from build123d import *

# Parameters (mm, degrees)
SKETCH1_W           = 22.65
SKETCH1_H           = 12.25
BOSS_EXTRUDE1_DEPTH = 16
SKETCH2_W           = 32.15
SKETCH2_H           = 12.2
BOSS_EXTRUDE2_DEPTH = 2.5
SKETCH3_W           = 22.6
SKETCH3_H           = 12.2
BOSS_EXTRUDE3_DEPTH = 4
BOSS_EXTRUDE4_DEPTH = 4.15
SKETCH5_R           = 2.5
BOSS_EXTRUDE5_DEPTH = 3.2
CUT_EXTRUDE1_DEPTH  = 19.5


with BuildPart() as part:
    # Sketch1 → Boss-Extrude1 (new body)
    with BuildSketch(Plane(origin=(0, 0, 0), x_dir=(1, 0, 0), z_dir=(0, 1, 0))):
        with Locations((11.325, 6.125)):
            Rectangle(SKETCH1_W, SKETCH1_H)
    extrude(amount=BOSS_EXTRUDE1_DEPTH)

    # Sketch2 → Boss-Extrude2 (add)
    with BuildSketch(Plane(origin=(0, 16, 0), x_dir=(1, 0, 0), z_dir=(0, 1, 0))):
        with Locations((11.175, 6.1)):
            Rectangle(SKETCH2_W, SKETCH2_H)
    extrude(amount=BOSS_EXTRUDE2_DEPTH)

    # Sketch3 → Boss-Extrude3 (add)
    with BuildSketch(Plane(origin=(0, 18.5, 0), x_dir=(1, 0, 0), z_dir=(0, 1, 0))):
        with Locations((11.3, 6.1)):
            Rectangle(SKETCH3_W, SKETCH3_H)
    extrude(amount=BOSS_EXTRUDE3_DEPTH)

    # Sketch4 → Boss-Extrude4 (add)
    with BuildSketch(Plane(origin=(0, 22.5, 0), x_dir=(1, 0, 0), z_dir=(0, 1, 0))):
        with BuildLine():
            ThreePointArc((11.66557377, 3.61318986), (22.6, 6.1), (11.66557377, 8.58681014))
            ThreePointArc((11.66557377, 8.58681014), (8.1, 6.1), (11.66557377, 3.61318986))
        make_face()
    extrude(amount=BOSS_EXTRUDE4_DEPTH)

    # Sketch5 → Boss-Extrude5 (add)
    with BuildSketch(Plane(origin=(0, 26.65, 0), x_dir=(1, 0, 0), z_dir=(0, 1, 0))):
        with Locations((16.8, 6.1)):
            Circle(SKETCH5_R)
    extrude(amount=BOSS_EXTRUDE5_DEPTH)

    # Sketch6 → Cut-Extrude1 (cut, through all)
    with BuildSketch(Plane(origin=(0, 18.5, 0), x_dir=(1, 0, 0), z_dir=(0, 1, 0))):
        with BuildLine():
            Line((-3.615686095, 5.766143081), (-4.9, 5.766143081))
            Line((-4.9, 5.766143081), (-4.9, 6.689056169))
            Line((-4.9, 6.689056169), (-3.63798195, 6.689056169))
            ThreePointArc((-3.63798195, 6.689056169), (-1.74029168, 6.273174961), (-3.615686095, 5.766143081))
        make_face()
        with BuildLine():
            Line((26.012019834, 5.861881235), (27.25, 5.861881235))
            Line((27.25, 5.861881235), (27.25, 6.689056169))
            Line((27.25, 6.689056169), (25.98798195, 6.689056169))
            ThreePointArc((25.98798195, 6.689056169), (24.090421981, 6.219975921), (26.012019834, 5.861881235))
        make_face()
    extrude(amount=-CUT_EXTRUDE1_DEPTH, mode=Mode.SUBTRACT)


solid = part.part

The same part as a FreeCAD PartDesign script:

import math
import FreeCAD as App
import Part
import Sketcher

V = App.Vector

doc = App.newDocument("Part")
body = doc.addObject("PartDesign::Body", "Body")

sketch1 = body.newObject("Sketcher::SketchObject", "Sketch")
sketch1.AttachmentSupport = (doc.getObject("XZ_Plane"), [""])
sketch1.MapMode = "FlatFace"
sketch1.addGeometry(Part.LineSegment(V(0, -12.25, 0), V(0, 0, 0)), False)
sketch1.addGeometry(Part.LineSegment(V(0, 0, 0), V(22.65, 0, 0)), False)
sketch1.addGeometry(Part.LineSegment(V(22.65, 0, 0), V(22.65, -12.25, 0)), False)
sketch1.addGeometry(Part.LineSegment(V(22.65, -12.25, 0), V(0, -12.25, 0)), False)
sketch1.addConstraint(Sketcher.Constraint("Coincident", 0, 2, 1, 1))
sketch1.addConstraint(Sketcher.Constraint("Coincident", 1, 2, 2, 1))
sketch1.addConstraint(Sketcher.Constraint("Coincident", 2, 2, 3, 1))
sketch1.addConstraint(Sketcher.Constraint("Coincident", 3, 2, 0, 1))
sketch1.addConstraint(Sketcher.Constraint("Vertical", 0))
sketch1.addConstraint(Sketcher.Constraint("Horizontal", 1))
sketch1.addConstraint(Sketcher.Constraint("Vertical", 2))
sketch1.addConstraint(Sketcher.Constraint("Horizontal", 3))
sketch1.addConstraint(Sketcher.Constraint("Coincident", 0, 2, -1, 1))
sketch1.addConstraint(Sketcher.Constraint("DistanceX", 1, 1, 1, 2, 22.65))
sketch1.addConstraint(Sketcher.Constraint("DistanceY", 0, 1, 0, 2, 12.25))
pad1 = body.newObject("PartDesign::Pad", "Pad")
pad1.Profile = sketch1
pad1.Length = 16
pad1.Reversed = True

sketch2 = body.newObject("Sketcher::SketchObject", "Sketch001")
sketch2.AttachmentSupport = (doc.getObject("XZ_Plane"), [""])
sketch2.MapMode = "FlatFace"
sketch2.AttachmentOffset = App.Placement(V(0, 0, -16), App.Rotation())
sketch2.addGeometry(Part.LineSegment(V(-4.9, -12.2, 0), V(-4.9, 0, 0)), False)
sketch2.addGeometry(Part.LineSegment(V(-4.9, 0, 0), V(27.25, 0, 0)), False)
sketch2.addGeometry(Part.LineSegment(V(27.25, 0, 0), V(27.25, -12.2, 0)), False)
sketch2.addGeometry(Part.LineSegment(V(27.25, -12.2, 0), V(-4.9, -12.2, 0)), False)
sketch2.addConstraint(Sketcher.Constraint("Coincident", 0, 2, 1, 1))
sketch2.addConstraint(Sketcher.Constraint("Coincident", 1, 2, 2, 1))
sketch2.addConstraint(Sketcher.Constraint("Coincident", 2, 2, 3, 1))
sketch2.addConstraint(Sketcher.Constraint("Coincident", 3, 2, 0, 1))
sketch2.addConstraint(Sketcher.Constraint("Vertical", 0))
sketch2.addConstraint(Sketcher.Constraint("Horizontal", 1))
sketch2.addConstraint(Sketcher.Constraint("Vertical", 2))
sketch2.addConstraint(Sketcher.Constraint("Horizontal", 3))
sketch2.addConstraint(Sketcher.Constraint("PointOnObject", 0, 2, -1))
sketch2.addConstraint(Sketcher.Constraint("DistanceY", 0, 1, 0, 2, 12.2))
sketch2.addConstraint(Sketcher.Constraint("DistanceX", 1, 1, 1, 2, 32.15))
sketch2.addConstraint(Sketcher.Constraint("DistanceX", 0, 2, -1, 1, 4.9))
pad2 = body.newObject("PartDesign::Pad", "Pad001")
pad2.Profile = sketch2
pad2.Length = 2.5
pad2.Reversed = True

sketch3 = body.newObject("Sketcher::SketchObject", "Sketch002")
sketch3.AttachmentSupport = (doc.getObject("XZ_Plane"), [""])
sketch3.MapMode = "FlatFace"
sketch3.AttachmentOffset = App.Placement(V(0, 0, -18.5), App.Rotation())
sketch3.addGeometry(Part.LineSegment(V(0, -12.2, 0), V(0, 0, 0)), False)
sketch3.addGeometry(Part.LineSegment(V(0, 0, 0), V(22.6, 0, 0)), False)
sketch3.addGeometry(Part.LineSegment(V(22.6, 0, 0), V(22.6, -12.2, 0)), False)
sketch3.addGeometry(Part.LineSegment(V(22.6, -12.2, 0), V(0, -12.2, 0)), False)
sketch3.addConstraint(Sketcher.Constraint("Coincident", 0, 2, 1, 1))
sketch3.addConstraint(Sketcher.Constraint("Coincident", 1, 2, 2, 1))
sketch3.addConstraint(Sketcher.Constraint("Coincident", 2, 2, 3, 1))
sketch3.addConstraint(Sketcher.Constraint("Coincident", 3, 2, 0, 1))
sketch3.addConstraint(Sketcher.Constraint("Vertical", 0))
sketch3.addConstraint(Sketcher.Constraint("Horizontal", 1))
sketch3.addConstraint(Sketcher.Constraint("Vertical", 2))
sketch3.addConstraint(Sketcher.Constraint("Horizontal", 3))
sketch3.addConstraint(Sketcher.Constraint("Coincident", 0, 2, -1, 1))
sketch3.addConstraint(Sketcher.Constraint("DistanceX", 1, 1, 1, 2, 22.6))
sketch3.addConstraint(Sketcher.Constraint("DistanceY", 0, 1, 0, 2, 12.2))
pad3 = body.newObject("PartDesign::Pad", "Pad002")
pad3.Profile = sketch3
pad3.Length = 4
pad3.Reversed = True

sketch4 = body.newObject("Sketcher::SketchObject", "Sketch003")
sketch4.AttachmentSupport = (doc.getObject("XZ_Plane"), [""])
sketch4.MapMode = "FlatFace"
sketch4.AttachmentOffset = App.Placement(V(0, 0, -22.5), App.Rotation())
sketch4.addGeometry(Part.ArcOfCircle(Part.Circle(V(16.85, -6.1, 0), V(0, 0, 1), 5.75), math.radians(-154.374395), math.radians(154.374395)), False)
sketch4.addGeometry(Part.ArcOfCircle(Part.Circle(V(10.75, -6.1, 0), V(0, 0, 1), 2.65), math.radians(69.787708), math.radians(290.212292)), False)
sketch4.addConstraint(Sketcher.Constraint("Coincident", 0, 1, 1, 2))
sketch4.addConstraint(Sketcher.Constraint("Coincident", 1, 1, 0, 2))
sketch4.addConstraint(Sketcher.Constraint("Horizontal", 0, 3, 1, 3))
sketch4.addConstraint(Sketcher.Constraint("Radius", 0, 5.75))
sketch4.addConstraint(Sketcher.Constraint("Radius", 1, 2.65))
sketch4.addConstraint(Sketcher.Constraint("DistanceY", 0, 3, -1, 1, 6.1))
sketch4.addConstraint(Sketcher.Constraint("DistanceX", 1, 3, 0, 3, 6.1))
sketch4.addConstraint(Sketcher.Constraint("DistanceX", -1, 1, 0, 3, 16.85))
pad4 = body.newObject("PartDesign::Pad", "Pad003")
pad4.Profile = sketch4
pad4.Length = 4.15
pad4.Reversed = True

sketch5 = body.newObject("Sketcher::SketchObject", "Sketch004")
sketch5.AttachmentSupport = (doc.getObject("XZ_Plane"), [""])
sketch5.MapMode = "FlatFace"
sketch5.AttachmentOffset = App.Placement(V(0, 0, -26.65), App.Rotation())
sketch5.addGeometry(Part.Circle(V(16.8, -6.1, 0), V(0, 0, 1), 2.5), False)
sketch5.addConstraint(Sketcher.Constraint("Diameter", 0, 5.0))
sketch5.addConstraint(Sketcher.Constraint("DistanceX", -1, 1, 0, 3, 16.8))
sketch5.addConstraint(Sketcher.Constraint("DistanceY", 0, 3, -1, 1, 6.1))
pad5 = body.newObject("PartDesign::Pad", "Pad004")
pad5.Profile = sketch5
pad5.Length = 3.2
pad5.Reversed = True

sketch6 = body.newObject("Sketcher::SketchObject", "Sketch005")
sketch6.AttachmentSupport = (doc.getObject("XZ_Plane"), [""])
sketch6.MapMode = "FlatFace"
sketch6.AttachmentOffset = App.Placement(V(0, 0, -18.5), App.Rotation())
sketch6.addGeometry(Part.LineSegment(V(-4.9, -5.766143, 0), V(-3.615686, -5.766143, 0)), False)
sketch6.addGeometry(Part.ArcOfCircle(Part.Circle(V(-2.74, -6.249024, 0), V(0, 0, 1), 1), math.radians(-153.894058), math.radians(151.126279)), False)
sketch6.addGeometry(Part.LineSegment(V(-3.637982, -6.689056, 0), V(-4.9, -6.689056, 0)), False)
sketch6.addGeometry(Part.LineSegment(V(-4.9, -6.689056, 0), V(-4.9, -5.766143, 0)), False)
sketch6.addGeometry(Part.LineSegment(V(26.01202, -5.861881, 0), V(27.25, -5.861881, 0)), False)
sketch6.addGeometry(Part.LineSegment(V(27.25, -5.861881, 0), V(27.25, -6.689056, 0)), False)
sketch6.addGeometry(Part.LineSegment(V(27.25, -6.689056, 0), V(25.987982, -6.689056, 0)), False)
sketch6.addGeometry(Part.ArcOfCircle(Part.Circle(V(25.09, -6.249024, 0), V(0, 0, 1), 1), math.radians(22.776823), math.radians(333.894059)), False)
sketch6.addConstraint(Sketcher.Constraint("Coincident", 0, 2, 1, 2))
sketch6.addConstraint(Sketcher.Constraint("Coincident", 1, 1, 2, 1))
sketch6.addConstraint(Sketcher.Constraint("Coincident", 2, 2, 3, 1))
sketch6.addConstraint(Sketcher.Constraint("Coincident", 3, 2, 0, 1))
sketch6.addConstraint(Sketcher.Constraint("Coincident", 4, 2, 5, 1))
sketch6.addConstraint(Sketcher.Constraint("Coincident", 5, 2, 6, 1))
sketch6.addConstraint(Sketcher.Constraint("Coincident", 6, 2, 7, 2))
sketch6.addConstraint(Sketcher.Constraint("Coincident", 7, 1, 4, 1))
sketch6.addConstraint(Sketcher.Constraint("Horizontal", 0))
sketch6.addConstraint(Sketcher.Constraint("Horizontal", 2))
sketch6.addConstraint(Sketcher.Constraint("Vertical", 3))
sketch6.addConstraint(Sketcher.Constraint("Horizontal", 4))
sketch6.addConstraint(Sketcher.Constraint("Vertical", 5))
sketch6.addConstraint(Sketcher.Constraint("Horizontal", 6))
sketch6.addConstraint(Sketcher.Constraint("Equal", 1, 7))
sketch6.addConstraint(Sketcher.Constraint("Horizontal", 1, 3, 7, 3))
sketch6.addConstraint(Sketcher.Constraint("Horizontal", 2, 2, 5, 2))
sketch6.addConstraint(Sketcher.Constraint("Equal", 2, 6))
sketch6.addConstraint(Sketcher.Constraint("Radius", 1, 1.0))
sketch6.addConstraint(Sketcher.Constraint("DistanceX", 2, 2, -1, 1, 4.9))
sketch6.addConstraint(Sketcher.Constraint("DistanceX", 1, 3, -1, 1, 2.74))
sketch6.addConstraint(Sketcher.Constraint("DistanceX", -1, 1, 7, 3, 25.09))
sketch6.addConstraint(Sketcher.Constraint("DistanceX", 2, 2, 2, 1, 1.262018))
sketch6.addConstraint(Sketcher.Constraint("DistanceX", 4, 1, 4, 2, 1.23798))
sketch6.addConstraint(Sketcher.Constraint("DistanceX", 0, 1, 0, 2, 1.284314))
sketch6.addConstraint(Sketcher.Constraint("DistanceY", 4, 2, -1, 1, 5.861881))
pocket1 = body.newObject("PartDesign::Pocket", "Pocket")
pocket1.Profile = sketch6
pocket1.Type = "ThroughAll"
pocket1.Reversed = True

doc.recompute()
